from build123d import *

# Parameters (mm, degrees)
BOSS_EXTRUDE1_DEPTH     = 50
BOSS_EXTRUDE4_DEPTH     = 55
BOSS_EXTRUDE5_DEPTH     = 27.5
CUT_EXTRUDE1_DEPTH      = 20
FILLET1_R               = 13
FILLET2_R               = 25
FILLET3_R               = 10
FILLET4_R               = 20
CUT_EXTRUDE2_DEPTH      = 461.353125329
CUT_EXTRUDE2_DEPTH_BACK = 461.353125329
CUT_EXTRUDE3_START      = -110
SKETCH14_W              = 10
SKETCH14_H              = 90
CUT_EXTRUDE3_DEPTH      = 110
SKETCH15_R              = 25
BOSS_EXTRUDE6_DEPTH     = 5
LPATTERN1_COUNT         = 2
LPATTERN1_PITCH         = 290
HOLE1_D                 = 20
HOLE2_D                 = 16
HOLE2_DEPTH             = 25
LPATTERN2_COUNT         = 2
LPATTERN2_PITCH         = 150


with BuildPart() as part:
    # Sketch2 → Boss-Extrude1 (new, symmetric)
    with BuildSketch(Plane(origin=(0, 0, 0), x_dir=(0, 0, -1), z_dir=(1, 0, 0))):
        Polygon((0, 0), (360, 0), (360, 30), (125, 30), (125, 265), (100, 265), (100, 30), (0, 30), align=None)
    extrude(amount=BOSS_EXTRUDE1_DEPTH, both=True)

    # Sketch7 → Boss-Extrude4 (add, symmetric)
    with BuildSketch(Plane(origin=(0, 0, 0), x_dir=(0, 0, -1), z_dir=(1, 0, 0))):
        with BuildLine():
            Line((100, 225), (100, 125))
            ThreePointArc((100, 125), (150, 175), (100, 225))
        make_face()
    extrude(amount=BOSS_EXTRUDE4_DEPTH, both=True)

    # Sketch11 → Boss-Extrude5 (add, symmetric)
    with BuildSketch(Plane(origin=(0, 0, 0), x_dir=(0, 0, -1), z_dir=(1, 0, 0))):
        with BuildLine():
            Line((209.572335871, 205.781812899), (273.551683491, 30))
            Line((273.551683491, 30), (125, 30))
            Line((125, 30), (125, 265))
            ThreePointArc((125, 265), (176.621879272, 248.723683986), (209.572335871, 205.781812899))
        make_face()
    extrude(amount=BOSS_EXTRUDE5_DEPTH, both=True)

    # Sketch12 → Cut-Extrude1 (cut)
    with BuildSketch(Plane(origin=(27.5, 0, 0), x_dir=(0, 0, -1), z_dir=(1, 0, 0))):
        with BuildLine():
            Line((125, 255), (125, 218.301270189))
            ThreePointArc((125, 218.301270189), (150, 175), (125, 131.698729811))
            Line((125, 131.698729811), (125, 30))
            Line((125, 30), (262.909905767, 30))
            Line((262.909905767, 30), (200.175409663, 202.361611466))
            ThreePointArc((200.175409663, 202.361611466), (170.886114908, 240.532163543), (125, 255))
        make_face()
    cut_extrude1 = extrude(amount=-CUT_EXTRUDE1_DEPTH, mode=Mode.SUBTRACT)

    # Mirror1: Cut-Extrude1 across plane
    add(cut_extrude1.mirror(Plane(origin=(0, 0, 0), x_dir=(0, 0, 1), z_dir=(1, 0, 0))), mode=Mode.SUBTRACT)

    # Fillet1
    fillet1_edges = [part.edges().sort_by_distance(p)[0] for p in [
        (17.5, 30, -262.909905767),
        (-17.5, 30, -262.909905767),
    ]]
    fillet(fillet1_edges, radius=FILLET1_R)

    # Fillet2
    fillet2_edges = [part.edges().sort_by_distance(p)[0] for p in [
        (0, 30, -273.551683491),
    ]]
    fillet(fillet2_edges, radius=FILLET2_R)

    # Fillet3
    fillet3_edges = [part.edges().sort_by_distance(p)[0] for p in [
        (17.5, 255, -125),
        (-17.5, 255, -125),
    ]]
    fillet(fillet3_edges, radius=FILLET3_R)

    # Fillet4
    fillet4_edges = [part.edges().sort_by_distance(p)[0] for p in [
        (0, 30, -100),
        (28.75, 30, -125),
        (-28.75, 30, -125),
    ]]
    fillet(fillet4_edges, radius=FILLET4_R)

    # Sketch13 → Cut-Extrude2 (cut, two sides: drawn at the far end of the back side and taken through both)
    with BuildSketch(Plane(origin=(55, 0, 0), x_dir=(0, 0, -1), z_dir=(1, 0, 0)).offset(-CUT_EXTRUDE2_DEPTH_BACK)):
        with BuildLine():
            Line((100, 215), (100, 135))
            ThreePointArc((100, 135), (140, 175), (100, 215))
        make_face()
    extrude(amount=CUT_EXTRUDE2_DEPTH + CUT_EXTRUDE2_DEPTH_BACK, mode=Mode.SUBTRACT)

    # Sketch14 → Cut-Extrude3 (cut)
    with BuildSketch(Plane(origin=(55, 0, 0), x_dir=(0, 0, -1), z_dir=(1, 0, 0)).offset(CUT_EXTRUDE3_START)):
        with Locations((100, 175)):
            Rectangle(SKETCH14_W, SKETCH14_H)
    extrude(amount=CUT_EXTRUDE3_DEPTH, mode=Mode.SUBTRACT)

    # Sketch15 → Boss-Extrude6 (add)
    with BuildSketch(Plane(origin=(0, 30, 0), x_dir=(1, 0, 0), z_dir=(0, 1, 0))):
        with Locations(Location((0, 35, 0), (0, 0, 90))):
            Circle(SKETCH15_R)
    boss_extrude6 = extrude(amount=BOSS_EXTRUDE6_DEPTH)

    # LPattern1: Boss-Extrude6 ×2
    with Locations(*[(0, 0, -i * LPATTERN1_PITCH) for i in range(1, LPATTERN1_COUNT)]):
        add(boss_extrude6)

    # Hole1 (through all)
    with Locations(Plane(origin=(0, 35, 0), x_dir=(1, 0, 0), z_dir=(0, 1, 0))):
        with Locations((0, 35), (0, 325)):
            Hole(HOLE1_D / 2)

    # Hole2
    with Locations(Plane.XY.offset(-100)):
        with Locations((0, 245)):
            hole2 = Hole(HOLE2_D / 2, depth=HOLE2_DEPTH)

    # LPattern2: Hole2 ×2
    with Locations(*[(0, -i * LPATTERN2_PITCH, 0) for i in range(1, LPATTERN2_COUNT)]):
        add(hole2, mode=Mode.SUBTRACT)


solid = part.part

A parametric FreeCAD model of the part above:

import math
import FreeCAD as App
import Part
import Sketcher

V = App.Vector
Q = App.Units.Quantity


def edges_at(feature, points):
    """Names of the edges that pass closest to the given points."""
    edges = feature.Shape.Edges
    near = lambda p: min(range(len(edges)), key=lambda i: edges[i].distToShape(Part.Vertex(*p))[0])
    return sorted({f"Edge{near(p) + 1}" for p in points})

doc = App.newDocument("Part")
body = doc.addObject("PartDesign::Body", "Body")

# Sketch on YZ plane
sketch1 = body.newObject("Sketcher::SketchObject", "Sketch")
sketch1.AttachmentSupport = (doc.getObject("YZ_Plane"), [""])
sketch1.MapMode = "FlatFace"
sketch1.addGeometry(Part.LineSegment(V(0, 0, 0), V(0, -360, 0)), False)
sketch1.addGeometry(Part.LineSegment(V(0, -360, 0), V(30, -360, 0)), False)
sketch1.addGeometry(Part.LineSegment(V(30, -360, 0), V(30, -125, 0)), False)
sketch1.addGeometry(Part.LineSegment(V(30, -125, 0), V(265, -125, 0)), False)
sketch1.addGeometry(Part.LineSegment(V(265, -125, 0), V(265, -100, 0)), False)
sketch1.addGeometry(Part.LineSegment(V(265, -100, 0), V(30, -100, 0)), False)
sketch1.addGeometry(Part.LineSegment(V(30, -100, 0), V(30, 0, 0)), False)
sketch1.addGeometry(Part.LineSegment(V(30, 0, 0), V(0, 0, 0)), False)
sketch1.addConstraint(Sketcher.Constraint("Coincident", 0, 2, 1, 1))
sketch1.addConstraint(Sketcher.Constraint("Coincident", 1, 2, 2, 1))
sketch1.addConstraint(Sketcher.Constraint("Coincident", 2, 2, 3, 1))
sketch1.addConstraint(Sketcher.Constraint("Coincident", 3, 2, 4, 1))
sketch1.addConstraint(Sketcher.Constraint("Coincident", 4, 2, 5, 1))
sketch1.addConstraint(Sketcher.Constraint("Coincident", 5, 2, 6, 1))
sketch1.addConstraint(Sketcher.Constraint("Coincident", 6, 2, 7, 1))
sketch1.addConstraint(Sketcher.Constraint("Coincident", 7, 2, 0, 1))
sketch1.addConstraint(Sketcher.Constraint("Vertical", 0))
sketch1.addConstraint(Sketcher.Constraint("Horizontal", 1))
sketch1.addConstraint(Sketcher.Constraint("Vertical", 2))
sketch1.addConstraint(Sketcher.Constraint("Horizontal", 3))
sketch1.addConstraint(Sketcher.Constraint("Vertical", 4))
sketch1.addConstraint(Sketcher.Constraint("Horizontal", 5))
sketch1.addConstraint(Sketcher.Constraint("Vertical", 6))
sketch1.addConstraint(Sketcher.Constraint("Horizontal", 7))
sketch1.addConstraint(Sketcher.Constraint("Coincident", 7, 2, -1, 1))
sketch1.addConstraint(Sketcher.Constraint("Vertical", 2, 2, 5, 2))
sketch1.addConstraint(Sketcher.Constraint("Equal", 5, 2))
sketch1.addConstraint(Sketcher.Constraint("DistanceX", 1, 1, 1, 2, 30.0))
sketch1.addConstraint(Sketcher.Constraint("DistanceX", 3, 1, 3, 2, 235.0))
sketch1.addConstraint(Sketcher.Constraint("DistanceY", 0, 2, 0, 1, 360.0))
sketch1.addConstraint(Sketcher.Constraint("DistanceY", 4, 1, 4, 2, 25.0))
pad1 = body.newObject("PartDesign::Pad", "Pad")
pad1.Profile = sketch1
pad1.Length = 100
pad1.Midplane = True

# Sketch on YZ plane
sketch2 = body.newObject("Sketcher::SketchObject", "Sketch001")
sketch2.AttachmentSupport = (doc.getObject("YZ_Plane"), [""])
sketch2.MapMode = "FlatFace"
sketch2.addGeometry(Part.LineSegment(V(225, -100, 0), V(125, -100, 0)), False)
sketch2.addGeometry(Part.ArcOfCircle(Part.Circle(V(175, -100, 0), V(0, 0, 1), 50), math.radians(180), math.radians(360)), False)
sketch2.addConstraint(Sketcher.Constraint("Coincident", 0, 1, 1, 2))
sketch2.addConstraint(Sketcher.Constraint("Coincident", 1, 1, 0, 2))
sketch2.addConstraint(Sketcher.Constraint("Horizontal", 0))
sketch2.addConstraint(Sketcher.Constraint("Horizontal", 1, 3, 0, 1))
sketch2.addConstraint(Sketcher.Constraint("Radius", 1, 50.0))
sketch2.addConstraint(Sketcher.Constraint("DistanceX", -1, 1, 1, 3, 175.0))
sketch2.addConstraint(Sketcher.Constraint("DistanceY", 1, 3, -1, 1, 100.0))
pad2 = body.newObject("PartDesign::Pad", "Pad001")
pad2.Profile = sketch2
pad2.Length = 110
pad2.Midplane = True

# Sketch on YZ plane
sketch3 = body.newObject("Sketcher::SketchObject", "Sketch002")
sketch3.AttachmentSupport = (doc.getObject("YZ_Plane"), [""])
sketch3.MapMode = "FlatFace"
sketch3.addGeometry(Part.LineSegment(V(30, -274, 0), V(206, -210, 0)), False)
sketch3.addGeometry(Part.ArcOfCircle(Part.Circle(V(175, -125, 0), V(0, 0, 1), 90), math.radians(-70), math.radians(0)), False)
sketch3.addGeometry(Part.LineSegment(V(265, -125, 0), V(30, -125, 0)), False)
sketch3.addGeometry(Part.LineSegment(V(30, -125, 0), V(30, -274, 0)), False)
sketch3.addConstraint(Sketcher.Constraint("Tangent", 0, 2, 1, 1))
sketch3.addConstraint(Sketcher.Constraint("Coincident", 1, 2, 2, 1))
sketch3.addConstraint(Sketcher.Constraint("Coincident", 2, 2, 3, 1))
sketch3.addConstraint(Sketcher.Constraint("Coincident", 3, 2, 0, 1))
sketch3.addConstraint(Sketcher.Constraint("Horizontal", 2))
sketch3.addConstraint(Sketcher.Constraint("Vertical", 3))
sketch3.addConstraint(Sketcher.Constraint("Radius", 1, 90.0))
sketch3.addConstraint(Sketcher.Constraint("DistanceX", 2, 2, 2, 1, 235.0))
sketch3.addConstraint(Sketcher.Constraint("Angle", 0, Q("20 deg")))
sketch3.addConstraint(Sketcher.Constraint("DistanceX", -1, 1, 1, 3, 175.0))
sketch3.addConstraint(Sketcher.Constraint("DistanceY", 1, 3, -1, 1, 125.0))
sketch3.addConstraint(Sketcher.Constraint("DistanceY", 1, 2, -1, 1, 125.0))
pad3 = body.newObject("PartDesign::Pad", "Pad002")
pad3.Profile = sketch3
pad3.Length = 55
pad3.Midplane = True

# Sketch on YZ plane
sketch4 = body.newObject("Sketcher::SketchObject", "Sketch003")
sketch4.AttachmentSupport = (doc.getObject("YZ_Plane"), [""])
sketch4.MapMode = "FlatFace"
sketch4.AttachmentOffset = App.Placement(V(0, 0, 27.5), App.Rotation())
sketch4.addGeometry(Part.LineSegment(V(255, -125, 0), V(218, -125, 0)), False)
sketch4.addGeometry(Part.ArcOfCircle(Part.Circle(V(175, -100, 0), V(0, 0, 1), 50), math.radians(-150), math.radians(-30)), False)
sketch4.addGeometry(Part.LineSegment(V(132, -125, 0), V(30, -125, 0)), False)
sketch4.addGeometry(Part.LineSegment(V(30, -125, 0), V(30, -263, 0)), False)
sketch4.addGeometry(Part.LineSegment(V(30, -263, 0), V(202, -200, 0)), False)
sketch4.addGeometry(Part.ArcOfCircle(Part.Circle(V(175, -125, 0), V(0, 0, 1), 80), math.radians(-70), math.radians(0)), False)
sketch4.addConstraint(Sketcher.Constraint("Coincident", 0, 2, 1, 2))
sketch4.addConstraint(Sketcher.Constraint("Coincident", 1, 1, 2, 1))
sketch4.addConstraint(Sketcher.Constraint("Coincident", 2, 2, 3, 1))
sketch4.addConstraint(Sketcher.Constraint("Coincident", 3, 2, 4, 1))
sketch4.addConstraint(Sketcher.Constraint("Tangent", 4, 2, 5, 1))
sketch4.addConstraint(Sketcher.Constraint("Coincident", 5, 2, 0, 1))
sketch4.addConstraint(Sketcher.Constraint("Horizontal", 0))
sketch4.addConstraint(Sketcher.Constraint("Horizontal", 2))
sketch4.addConstraint(Sketcher.Constraint("Vertical", 3))
sketch4.addConstraint(Sketcher.Constraint("Horizontal", 5, 3, 0, 2))
sketch4.addConstraint(Sketcher.Constraint("Horizontal", 0, 2, 1, 1))
sketch4.addConstraint(Sketcher.Constraint("Vertical", 1, 3, 5, 3))
sketch4.addConstraint(Sketcher.Constraint("Radius", 1, 50.0))
sketch4.addConstraint(Sketcher.Constraint("Radius", 5, 80.0))
sketch4.addConstraint(Sketcher.Constraint("Angle", 4, Q("20 deg")))
sketch4.addConstraint(Sketcher.Constraint("DistanceX", -1, 1, 1, 3, 175.0))
sketch4.addConstraint(Sketcher.Constraint("DistanceY", 1, 3, -1, 1, 100.0))
sketch4.addConstraint(Sketcher.Constraint("DistanceY", 5, 3, -1, 1, 125.0))
sketch4.addConstraint(Sketcher.Constraint("DistanceX", -1, 1, 2, 2, 30.0))
pocket1 = body.newObject("PartDesign::Pocket", "Pocket")
pocket1.Profile = sketch4
pocket1.Length = 20
doc.recompute()

mirrored = body.newObject("PartDesign::Mirrored", "Mirrored")
mirrored.Originals = [pocket1]
mirrored.MirrorPlane = (doc.getObject("YZ_Plane"), [""])
body.Tip = mirrored
doc.recompute()

fillet = body.newObject("PartDesign::Fillet", "Fillet")
fillet.Base = (mirrored, edges_at(mirrored, [(17.5, 30, -262.91), (-17.5, 30, -262.91)]))
fillet.Radius = 13
doc.recompute()

fillet2 = body.newObject("PartDesign::Fillet", "Fillet001")
fillet2.Base = (fillet, edges_at(fillet, [(0, 30, -273.552)]))
fillet2.Radius = 25
doc.recompute()

fillet3 = body.newObject("PartDesign::Fillet", "Fillet002")
fillet3.Base = (fillet2, edges_at(fillet2, [(17.5, 255, -125), (-17.5, 255, -125)]))
fillet3.Radius = 10
doc.recompute()

fillet4 = body.newObject("PartDesign::Fillet", "Fillet003")
fillet4.Base = (fillet3, edges_at(fillet3, [(0, 30, -100), (28.75, 30, -125), (-28.75, 30, -125)]))
fillet4.Radius = 20

# Sketch on YZ plane
sketch5 = body.newObject("Sketcher::SketchObject", "Sketch004")
sketch5.AttachmentSupport = (doc.getObject("YZ_Plane"), [""])
sketch5.MapMode = "FlatFace"
sketch5.AttachmentOffset = App.Placement(V(0, 0, 55), App.Rotation())
sketch5.addGeometry(Part.LineSegment(V(215, -100, 0), V(135, -100, 0)), False)
sketch5.addGeometry(Part.ArcOfCircle(Part.Circle(V(175, -100, 0), V(0, 0, 1), 40), math.radians(180), math.radians(360)), False)
sketch5.addConstraint(Sketcher.Constraint("Coincident", 0, 1, 1, 2))
sketch5.addConstraint(Sketcher.Constraint("Coincident", 1, 1, 0, 2))
sketch5.addConstraint(Sketcher.Constraint("Horizontal", 0))
sketch5.addConstraint(Sketcher.Constraint("Horizontal", 1, 3, 0, 1))
sketch5.addConstraint(Sketcher.Constraint("Radius", 1, 40.0))
sketch5.addConstraint(Sketcher.Constraint("DistanceX", -1, 1, 1, 3, 175.0))
sketch5.addConstraint(Sketcher.Constraint("DistanceY", 1, 3, -1, 1, 100.0))
pocket2 = body.newObject("PartDesign::Pocket", "Pocket001")
pocket2.Profile = sketch5
pocket2.Type = "ThroughAll"
pocket2.Midplane = True

# Sketch on YZ plane
sketch6 = body.newObject("Sketcher::SketchObject", "Sketch005")
sketch6.AttachmentSupport = (doc.getObject("YZ_Plane"), [""])
sketch6.MapMode = "FlatFace"
sketch6.AttachmentOffset = App.Placement(V(0, 0, -55), App.Rotation())
sketch6.addGeometry(Part.LineSegment(V(220, -95, 0), V(130, -95, 0)), False)
sketch6.addGeometry(Part.LineSegment(V(130, -95, 0), V(130, -105, 0)), False)
sketch6.addGeometry(Part.LineSegment(V(130, -105, 0), V(220, -105, 0)), False)
sketch6.addGeometry(Part.LineSegment(V(220, -105, 0), V(220, -95, 0)), False)
sketch6.addConstraint(Sketcher.Constraint("Coincident", 0, 2, 1, 1))
sketch6.addConstraint(Sketcher.Constraint("Coincident", 1, 2, 2, 1))
sketch6.addConstraint(Sketcher.Constraint("Coincident", 2, 2, 3, 1))
sketch6.addConstraint(Sketcher.Constraint("Coincident", 3, 2, 0, 1))
sketch6.addConstraint(Sketcher.Constraint("Horizontal", 0))
sketch6.addConstraint(Sketcher.Constraint("Vertical", 1))
sketch6.addConstraint(Sketcher.Constraint("Horizontal", 2))
sketch6.addConstraint(Sketcher.Constraint("Vertical", 3))
sketch6.addConstraint(Sketcher.Constraint("DistanceX", 0, 2, 0, 1, 90.0))
sketch6.addConstraint(Sketcher.Constraint("DistanceY", 1, 2, 1, 1, 10.0))
sketch6.addConstraint(Sketcher.Constraint("DistanceX", -1, 1, 0, 2, 130.0))
sketch6.addConstraint(Sketcher.Constraint("DistanceY", 0, 2, -1, 1, 95.0))
pocket3 = body.newObject("PartDesign::Pocket", "Pocket002")
pocket3.Profile = sketch6
pocket3.Length = 110
pocket3.Reversed = True

# Sketch on XZ plane
sketch7 = body.newObject("Sketcher::SketchObject", "Sketch006")
sketch7.AttachmentSupport = (doc.getObject("XZ_Plane"), [""])
sketch7.MapMode = "FlatFace"
sketch7.AttachmentOffset = App.Placement(V(0, 0, -30), App.Rotation())
sketch7.addGeometry(Part.Circle(V(0, -35, 0), V(0, 0, 1), 25), False)
sketch7.addConstraint(Sketcher.Constraint("PointOnObject", 0, 3, -2))
sketch7.addConstraint(Sketcher.Constraint("Diameter", 0, 50.0))
sketch7.addConstraint(Sketcher.Constraint("DistanceY", 0, 3, -1, 1, 35.0))
pad4 = body.newObject("PartDesign::Pad", "Pad003")
pad4.Profile = sketch7
pad4.Length = 5
pad4.Reversed = True
doc.recompute()

linearpattern = body.newObject("PartDesign::LinearPattern", "LinearPattern")
linearpattern.Originals = [pad4]
linearpattern.Direction = (doc.getObject("Z_Axis"), [""])
linearpattern.Mode = "offset"
linearpattern.Offset = 290
linearpattern.Occurrences = 2
linearpattern.Reversed = True
body.Tip = linearpattern

# Sketch on XZ plane
sketch8 = body.newObject("Sketcher::SketchObject", "Sketch007")
sketch8.AttachmentSupport = (doc.getObject("XZ_Plane"), [""])
sketch8.MapMode = "FlatFace"
sketch8.AttachmentOffset = App.Placement(V(0, 0, -35), App.Rotation())
sketch8.addGeometry(Part.Circle(V(0, -35, 0), V(0, 0, 1), 10), False)
sketch8.addGeometry(Part.Circle(V(0, -325, 0), V(0, 0, 1), 10), False)
sketch8.addConstraint(Sketcher.Constraint("Equal", 0, 1))
sketch8.addConstraint(Sketcher.Constraint("PointOnObject", 0, 3, -2))
sketch8.addConstraint(Sketcher.Constraint("PointOnObject", 1, 3, -2))
sketch8.addConstraint(Sketcher.Constraint("Diameter", 0, 20.0))
sketch8.addConstraint(Sketcher.Constraint("DistanceY", 0, 3, -1, 1, 35.0))
sketch8.addConstraint(Sketcher.Constraint("DistanceY", 1, 3, -1, 1, 325.0))
doc.recompute()
hole = body.newObject("PartDesign::Hole", "Hole")
hole.Profile = sketch8
hole.ThreadType = "None"
hole.Diameter = 20
hole.DepthType = "ThroughAll"
hole.Reversed = True

# Sketch on XY plane
sketch9 = body.newObject("Sketcher::SketchObject", "Sketch008")
sketch9.AttachmentSupport = (doc.getObject("XY_Plane"), [""])
sketch9.MapMode = "FlatFace"
sketch9.AttachmentOffset = App.Placement(V(0, 0, -100), App.Rotation())
sketch9.addGeometry(Part.Circle(V(0, 245, 0), V(0, 0, 1), 8), False)
sketch9.addConstraint(Sketcher.Constraint("PointOnObject", 0, 3, -2))
sketch9.addConstraint(Sketcher.Constraint("Diameter", 0, 16.0))
sketch9.addConstraint(Sketcher.Constraint("DistanceY", -1, 1, 0, 3, 245.0))
doc.recompute()
hole2 = body.newObject("PartDesign::Hole", "Hole001")
hole2.Profile = sketch9
hole2.ThreadType = "None"
hole2.Diameter = 16
hole2.DepthType = "Dimension"
hole2.Depth = 25
hole2.DrillPoint = "Flat"
doc.recompute()

linearpattern2 = body.newObject("PartDesign::LinearPattern", "LinearPattern001")
linearpattern2.Originals = [hole2]
linearpattern2.Direction = (doc.getObject("Y_Axis"), [""])
linearpattern2.Mode = "offset"
linearpattern2.Offset = 150
linearpattern2.Occurrences = 2
linearpattern2.Reversed = True
body.Tip = linearpattern2

doc.recompute()
